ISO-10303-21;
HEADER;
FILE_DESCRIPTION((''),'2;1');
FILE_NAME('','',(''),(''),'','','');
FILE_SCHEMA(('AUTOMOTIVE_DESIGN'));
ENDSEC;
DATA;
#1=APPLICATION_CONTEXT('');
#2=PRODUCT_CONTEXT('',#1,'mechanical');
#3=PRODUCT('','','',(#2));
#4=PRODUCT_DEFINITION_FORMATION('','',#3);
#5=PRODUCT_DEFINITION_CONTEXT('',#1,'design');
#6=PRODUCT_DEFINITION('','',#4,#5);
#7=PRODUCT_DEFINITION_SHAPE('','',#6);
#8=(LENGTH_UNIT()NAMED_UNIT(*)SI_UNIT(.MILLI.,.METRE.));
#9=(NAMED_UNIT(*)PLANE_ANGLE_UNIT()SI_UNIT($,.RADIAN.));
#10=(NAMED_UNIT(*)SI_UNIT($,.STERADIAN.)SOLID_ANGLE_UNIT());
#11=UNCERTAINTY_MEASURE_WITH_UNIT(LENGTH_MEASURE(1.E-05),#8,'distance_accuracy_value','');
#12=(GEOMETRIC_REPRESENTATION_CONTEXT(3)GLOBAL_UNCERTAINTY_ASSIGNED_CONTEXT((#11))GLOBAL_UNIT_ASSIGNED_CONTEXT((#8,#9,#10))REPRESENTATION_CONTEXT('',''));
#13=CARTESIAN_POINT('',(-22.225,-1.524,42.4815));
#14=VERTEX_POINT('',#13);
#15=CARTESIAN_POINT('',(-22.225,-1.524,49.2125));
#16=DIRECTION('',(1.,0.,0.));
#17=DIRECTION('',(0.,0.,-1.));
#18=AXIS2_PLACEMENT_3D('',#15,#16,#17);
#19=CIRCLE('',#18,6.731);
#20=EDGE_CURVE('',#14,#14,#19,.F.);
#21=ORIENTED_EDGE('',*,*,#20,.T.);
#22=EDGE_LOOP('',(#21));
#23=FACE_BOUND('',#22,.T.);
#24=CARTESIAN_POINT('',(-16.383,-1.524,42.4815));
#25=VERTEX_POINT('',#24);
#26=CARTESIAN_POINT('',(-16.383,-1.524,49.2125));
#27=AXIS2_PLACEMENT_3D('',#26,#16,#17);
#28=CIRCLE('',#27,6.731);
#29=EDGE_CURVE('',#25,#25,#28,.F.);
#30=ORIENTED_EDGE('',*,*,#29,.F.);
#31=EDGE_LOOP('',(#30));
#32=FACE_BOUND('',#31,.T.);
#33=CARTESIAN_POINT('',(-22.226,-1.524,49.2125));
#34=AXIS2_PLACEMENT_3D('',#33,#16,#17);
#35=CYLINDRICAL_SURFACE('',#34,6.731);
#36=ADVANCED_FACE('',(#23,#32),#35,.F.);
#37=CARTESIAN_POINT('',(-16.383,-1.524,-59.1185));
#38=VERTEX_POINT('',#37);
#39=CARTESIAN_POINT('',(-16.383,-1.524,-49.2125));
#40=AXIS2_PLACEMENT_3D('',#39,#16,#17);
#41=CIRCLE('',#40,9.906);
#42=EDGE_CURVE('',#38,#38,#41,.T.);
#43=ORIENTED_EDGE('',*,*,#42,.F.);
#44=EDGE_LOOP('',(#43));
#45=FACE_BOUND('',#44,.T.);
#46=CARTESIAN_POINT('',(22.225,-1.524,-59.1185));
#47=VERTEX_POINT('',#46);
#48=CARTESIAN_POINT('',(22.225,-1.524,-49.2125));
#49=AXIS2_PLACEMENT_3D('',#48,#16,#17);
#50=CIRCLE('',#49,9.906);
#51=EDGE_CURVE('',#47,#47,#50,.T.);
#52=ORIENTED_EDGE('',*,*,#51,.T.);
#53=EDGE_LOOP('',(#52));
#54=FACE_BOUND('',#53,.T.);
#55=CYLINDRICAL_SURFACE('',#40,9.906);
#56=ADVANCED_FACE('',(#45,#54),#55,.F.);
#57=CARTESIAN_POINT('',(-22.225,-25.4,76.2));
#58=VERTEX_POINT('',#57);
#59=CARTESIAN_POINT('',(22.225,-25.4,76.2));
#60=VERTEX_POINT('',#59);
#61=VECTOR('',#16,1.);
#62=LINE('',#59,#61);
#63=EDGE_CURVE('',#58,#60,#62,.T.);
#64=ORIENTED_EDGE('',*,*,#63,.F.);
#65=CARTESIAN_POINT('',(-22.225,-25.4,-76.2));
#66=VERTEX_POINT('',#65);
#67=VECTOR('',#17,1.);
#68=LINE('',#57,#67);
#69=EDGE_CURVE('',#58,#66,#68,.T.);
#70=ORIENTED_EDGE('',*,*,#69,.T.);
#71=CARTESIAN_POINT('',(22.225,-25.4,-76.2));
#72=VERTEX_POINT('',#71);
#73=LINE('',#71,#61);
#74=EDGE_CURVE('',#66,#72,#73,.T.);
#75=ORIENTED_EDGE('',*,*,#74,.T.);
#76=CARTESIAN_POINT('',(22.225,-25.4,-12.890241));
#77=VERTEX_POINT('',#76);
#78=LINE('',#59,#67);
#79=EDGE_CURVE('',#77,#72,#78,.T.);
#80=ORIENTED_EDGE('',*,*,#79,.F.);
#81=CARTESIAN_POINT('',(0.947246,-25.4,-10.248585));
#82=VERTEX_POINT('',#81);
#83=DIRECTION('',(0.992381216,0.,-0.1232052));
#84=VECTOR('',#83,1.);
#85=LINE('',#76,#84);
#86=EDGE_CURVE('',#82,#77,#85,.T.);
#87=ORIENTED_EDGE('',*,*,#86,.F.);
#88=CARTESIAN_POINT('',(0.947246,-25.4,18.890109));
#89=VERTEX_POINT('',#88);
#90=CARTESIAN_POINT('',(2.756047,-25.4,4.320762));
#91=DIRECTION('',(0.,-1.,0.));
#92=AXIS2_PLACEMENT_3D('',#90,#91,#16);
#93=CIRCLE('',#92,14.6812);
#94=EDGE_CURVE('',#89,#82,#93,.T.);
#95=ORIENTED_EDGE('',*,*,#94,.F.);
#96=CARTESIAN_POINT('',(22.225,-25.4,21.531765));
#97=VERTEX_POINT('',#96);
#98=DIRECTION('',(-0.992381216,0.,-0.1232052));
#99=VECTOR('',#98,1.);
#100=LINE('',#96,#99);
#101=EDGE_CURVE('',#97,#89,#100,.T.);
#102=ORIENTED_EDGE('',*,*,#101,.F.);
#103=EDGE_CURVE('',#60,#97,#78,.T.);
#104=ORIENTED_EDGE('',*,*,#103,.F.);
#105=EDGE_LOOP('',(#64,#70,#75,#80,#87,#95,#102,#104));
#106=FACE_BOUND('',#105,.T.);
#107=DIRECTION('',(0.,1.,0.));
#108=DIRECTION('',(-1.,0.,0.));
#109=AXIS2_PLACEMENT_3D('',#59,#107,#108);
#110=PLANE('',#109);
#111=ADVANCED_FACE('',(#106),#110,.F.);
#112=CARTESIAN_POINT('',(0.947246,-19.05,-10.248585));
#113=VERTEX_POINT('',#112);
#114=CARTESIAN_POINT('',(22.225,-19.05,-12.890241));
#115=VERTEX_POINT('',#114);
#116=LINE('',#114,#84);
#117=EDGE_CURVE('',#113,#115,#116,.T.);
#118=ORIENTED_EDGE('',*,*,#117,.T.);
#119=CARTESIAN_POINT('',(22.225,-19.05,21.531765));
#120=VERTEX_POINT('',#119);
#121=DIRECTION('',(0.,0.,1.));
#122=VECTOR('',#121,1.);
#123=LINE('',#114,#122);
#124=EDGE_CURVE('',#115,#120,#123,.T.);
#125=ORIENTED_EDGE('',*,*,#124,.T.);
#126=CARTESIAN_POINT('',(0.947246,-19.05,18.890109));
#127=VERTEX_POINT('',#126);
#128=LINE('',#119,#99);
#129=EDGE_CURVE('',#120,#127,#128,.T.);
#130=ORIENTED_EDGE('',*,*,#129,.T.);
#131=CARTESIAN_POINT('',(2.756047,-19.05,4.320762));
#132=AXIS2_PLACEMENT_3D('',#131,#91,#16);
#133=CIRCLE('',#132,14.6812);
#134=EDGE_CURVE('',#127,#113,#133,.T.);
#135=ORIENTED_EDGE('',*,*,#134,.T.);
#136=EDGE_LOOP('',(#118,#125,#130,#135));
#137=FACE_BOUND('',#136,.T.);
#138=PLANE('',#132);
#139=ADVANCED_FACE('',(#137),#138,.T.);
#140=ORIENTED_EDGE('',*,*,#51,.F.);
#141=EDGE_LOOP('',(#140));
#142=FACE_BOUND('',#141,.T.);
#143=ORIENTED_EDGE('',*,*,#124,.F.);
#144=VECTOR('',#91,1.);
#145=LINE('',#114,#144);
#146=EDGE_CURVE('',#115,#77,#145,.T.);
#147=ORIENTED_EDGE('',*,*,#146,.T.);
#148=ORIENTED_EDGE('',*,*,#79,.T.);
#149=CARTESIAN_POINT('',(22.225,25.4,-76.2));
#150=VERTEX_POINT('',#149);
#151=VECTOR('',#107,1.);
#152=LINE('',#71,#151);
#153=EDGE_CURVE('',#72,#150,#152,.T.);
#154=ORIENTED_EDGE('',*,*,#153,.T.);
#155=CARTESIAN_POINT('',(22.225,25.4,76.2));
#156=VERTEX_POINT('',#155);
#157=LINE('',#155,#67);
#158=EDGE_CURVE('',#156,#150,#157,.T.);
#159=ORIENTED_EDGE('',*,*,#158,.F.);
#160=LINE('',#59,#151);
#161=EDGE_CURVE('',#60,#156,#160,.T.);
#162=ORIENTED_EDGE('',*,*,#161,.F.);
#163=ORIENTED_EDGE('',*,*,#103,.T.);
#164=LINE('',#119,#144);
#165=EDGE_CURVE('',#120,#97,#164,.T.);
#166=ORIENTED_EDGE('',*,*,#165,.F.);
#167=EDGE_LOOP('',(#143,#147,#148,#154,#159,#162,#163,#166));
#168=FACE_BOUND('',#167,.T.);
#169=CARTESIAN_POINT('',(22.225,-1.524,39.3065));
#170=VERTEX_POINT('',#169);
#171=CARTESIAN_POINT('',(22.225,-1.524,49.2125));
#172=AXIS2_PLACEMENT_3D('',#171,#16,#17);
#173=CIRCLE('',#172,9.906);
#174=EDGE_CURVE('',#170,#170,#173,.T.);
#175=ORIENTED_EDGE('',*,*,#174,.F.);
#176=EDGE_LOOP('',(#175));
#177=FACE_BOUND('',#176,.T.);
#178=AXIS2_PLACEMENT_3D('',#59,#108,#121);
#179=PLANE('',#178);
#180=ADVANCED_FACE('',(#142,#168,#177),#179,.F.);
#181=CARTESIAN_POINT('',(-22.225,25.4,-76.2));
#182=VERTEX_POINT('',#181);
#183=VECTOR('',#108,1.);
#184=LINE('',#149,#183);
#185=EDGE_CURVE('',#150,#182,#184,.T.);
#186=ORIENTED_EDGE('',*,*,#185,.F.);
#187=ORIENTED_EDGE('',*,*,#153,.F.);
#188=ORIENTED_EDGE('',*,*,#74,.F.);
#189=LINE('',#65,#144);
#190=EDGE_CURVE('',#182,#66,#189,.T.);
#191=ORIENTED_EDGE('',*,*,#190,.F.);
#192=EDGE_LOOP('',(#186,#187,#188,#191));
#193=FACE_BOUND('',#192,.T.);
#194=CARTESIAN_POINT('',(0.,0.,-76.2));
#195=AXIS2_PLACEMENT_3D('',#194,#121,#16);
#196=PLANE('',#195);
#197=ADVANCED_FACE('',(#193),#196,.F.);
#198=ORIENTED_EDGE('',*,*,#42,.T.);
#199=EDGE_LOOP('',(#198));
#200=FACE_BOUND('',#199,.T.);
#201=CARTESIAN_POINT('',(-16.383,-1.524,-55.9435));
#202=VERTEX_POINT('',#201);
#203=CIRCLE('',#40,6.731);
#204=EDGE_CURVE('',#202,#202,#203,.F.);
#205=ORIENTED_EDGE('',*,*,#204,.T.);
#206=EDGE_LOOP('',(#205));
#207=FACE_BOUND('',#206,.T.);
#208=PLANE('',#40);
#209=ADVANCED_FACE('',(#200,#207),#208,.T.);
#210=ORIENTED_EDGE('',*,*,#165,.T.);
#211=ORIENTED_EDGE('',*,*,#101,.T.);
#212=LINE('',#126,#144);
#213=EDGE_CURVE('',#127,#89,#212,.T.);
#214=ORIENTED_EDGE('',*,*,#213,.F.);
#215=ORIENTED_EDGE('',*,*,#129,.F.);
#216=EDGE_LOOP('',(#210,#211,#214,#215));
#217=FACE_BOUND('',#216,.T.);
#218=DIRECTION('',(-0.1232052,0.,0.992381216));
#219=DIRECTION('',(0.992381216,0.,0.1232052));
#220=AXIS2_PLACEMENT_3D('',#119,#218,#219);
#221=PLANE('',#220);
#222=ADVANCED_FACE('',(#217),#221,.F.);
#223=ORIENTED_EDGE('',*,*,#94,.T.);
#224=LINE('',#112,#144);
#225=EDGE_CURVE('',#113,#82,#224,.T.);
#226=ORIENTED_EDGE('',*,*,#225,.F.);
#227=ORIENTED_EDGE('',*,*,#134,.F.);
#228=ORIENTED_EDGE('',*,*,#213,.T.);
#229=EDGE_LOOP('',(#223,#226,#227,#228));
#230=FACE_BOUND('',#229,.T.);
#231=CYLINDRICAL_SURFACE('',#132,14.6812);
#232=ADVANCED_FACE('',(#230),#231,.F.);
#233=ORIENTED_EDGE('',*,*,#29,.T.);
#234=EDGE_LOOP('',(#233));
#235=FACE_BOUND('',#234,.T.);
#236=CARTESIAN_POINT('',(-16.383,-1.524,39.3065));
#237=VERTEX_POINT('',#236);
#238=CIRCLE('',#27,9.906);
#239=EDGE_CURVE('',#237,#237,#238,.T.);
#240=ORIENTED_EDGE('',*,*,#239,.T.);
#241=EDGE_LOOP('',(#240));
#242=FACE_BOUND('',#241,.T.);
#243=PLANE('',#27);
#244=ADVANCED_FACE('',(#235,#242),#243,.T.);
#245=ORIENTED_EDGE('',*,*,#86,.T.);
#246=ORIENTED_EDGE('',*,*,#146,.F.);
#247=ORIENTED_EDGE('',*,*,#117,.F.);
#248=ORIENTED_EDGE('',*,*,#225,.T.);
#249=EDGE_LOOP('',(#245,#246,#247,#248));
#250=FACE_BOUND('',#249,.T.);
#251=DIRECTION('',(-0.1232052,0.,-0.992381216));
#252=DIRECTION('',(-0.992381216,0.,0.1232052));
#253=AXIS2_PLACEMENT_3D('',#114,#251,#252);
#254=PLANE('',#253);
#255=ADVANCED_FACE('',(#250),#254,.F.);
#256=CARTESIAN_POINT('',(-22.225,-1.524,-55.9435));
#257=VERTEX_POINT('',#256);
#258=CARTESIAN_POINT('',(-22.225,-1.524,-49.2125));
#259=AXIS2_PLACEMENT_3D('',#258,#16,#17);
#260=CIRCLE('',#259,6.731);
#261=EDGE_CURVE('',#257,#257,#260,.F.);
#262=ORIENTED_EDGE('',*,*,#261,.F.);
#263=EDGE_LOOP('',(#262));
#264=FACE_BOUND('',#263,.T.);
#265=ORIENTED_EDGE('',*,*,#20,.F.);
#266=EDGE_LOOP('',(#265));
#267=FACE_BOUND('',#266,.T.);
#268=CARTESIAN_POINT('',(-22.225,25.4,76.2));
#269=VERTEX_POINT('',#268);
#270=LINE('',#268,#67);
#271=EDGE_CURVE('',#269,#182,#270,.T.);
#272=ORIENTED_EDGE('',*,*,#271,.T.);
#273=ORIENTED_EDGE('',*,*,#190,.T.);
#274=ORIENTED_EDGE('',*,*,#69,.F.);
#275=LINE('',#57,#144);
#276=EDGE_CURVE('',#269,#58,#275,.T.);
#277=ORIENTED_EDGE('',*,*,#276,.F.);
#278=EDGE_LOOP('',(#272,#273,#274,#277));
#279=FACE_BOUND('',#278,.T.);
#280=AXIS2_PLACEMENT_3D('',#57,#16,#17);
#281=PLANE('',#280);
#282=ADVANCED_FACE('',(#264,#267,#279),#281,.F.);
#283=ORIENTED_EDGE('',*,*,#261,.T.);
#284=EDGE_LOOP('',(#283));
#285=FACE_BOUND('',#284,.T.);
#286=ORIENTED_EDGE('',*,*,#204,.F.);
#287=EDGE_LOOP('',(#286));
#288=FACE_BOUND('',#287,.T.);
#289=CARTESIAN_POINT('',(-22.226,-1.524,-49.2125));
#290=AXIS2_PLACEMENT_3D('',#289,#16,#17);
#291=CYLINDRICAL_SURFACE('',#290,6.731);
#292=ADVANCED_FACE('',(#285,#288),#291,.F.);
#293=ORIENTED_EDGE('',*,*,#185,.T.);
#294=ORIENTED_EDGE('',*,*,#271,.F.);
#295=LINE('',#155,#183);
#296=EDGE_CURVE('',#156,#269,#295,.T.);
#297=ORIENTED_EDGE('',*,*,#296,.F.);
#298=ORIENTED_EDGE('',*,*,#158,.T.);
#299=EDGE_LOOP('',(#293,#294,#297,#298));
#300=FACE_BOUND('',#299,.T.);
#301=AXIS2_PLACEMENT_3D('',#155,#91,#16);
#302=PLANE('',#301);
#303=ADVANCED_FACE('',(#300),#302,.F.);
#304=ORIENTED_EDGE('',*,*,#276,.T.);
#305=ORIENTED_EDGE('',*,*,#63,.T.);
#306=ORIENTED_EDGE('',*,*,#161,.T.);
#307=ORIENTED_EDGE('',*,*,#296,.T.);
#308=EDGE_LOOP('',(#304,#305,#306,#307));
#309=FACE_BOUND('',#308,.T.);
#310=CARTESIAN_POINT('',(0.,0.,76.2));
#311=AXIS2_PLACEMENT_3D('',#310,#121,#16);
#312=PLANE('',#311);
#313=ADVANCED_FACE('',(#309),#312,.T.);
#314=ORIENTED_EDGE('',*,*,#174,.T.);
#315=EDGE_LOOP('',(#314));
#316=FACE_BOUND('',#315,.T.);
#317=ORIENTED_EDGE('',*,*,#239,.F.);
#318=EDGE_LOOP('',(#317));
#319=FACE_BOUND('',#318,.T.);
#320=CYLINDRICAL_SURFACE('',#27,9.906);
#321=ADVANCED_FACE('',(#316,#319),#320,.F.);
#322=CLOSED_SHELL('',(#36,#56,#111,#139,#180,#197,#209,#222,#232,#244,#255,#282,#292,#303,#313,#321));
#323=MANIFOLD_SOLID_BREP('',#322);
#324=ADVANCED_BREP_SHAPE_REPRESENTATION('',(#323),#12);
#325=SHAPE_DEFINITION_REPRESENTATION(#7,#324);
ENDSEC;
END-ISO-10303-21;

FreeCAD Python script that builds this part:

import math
import FreeCAD as App
import Part
import Sketcher
Q = App.Units.Quantity

doc = App.newDocument("Part")
body = doc.addObject("PartDesign::Body", "Body")

# Sketch on XY plane
sketch1 = body.newObject("Sketcher::SketchObject", "Sketch")
sketch1.AttachmentSupport = (doc.getObject("XY_Plane"), [""])
sketch1.MapMode = "FlatFace"
sketch1.addGeometry(Part.LineSegment(App.Vector(-22, 25, 0), App.Vector(-22, -25, 0)), False)
sketch1.addGeometry(Part.LineSegment(App.Vector(-22, -25, 0), App.Vector(22, -25, 0)), False)
sketch1.addGeometry(Part.LineSegment(App.Vector(22, -25, 0), App.Vector(22, 25, 0)), False)
sketch1.addGeometry(Part.LineSegment(App.Vector(22, 25, 0), App.Vector(-22, 25, 0)), False)
sketch1.addConstraint(Sketcher.Constraint("Coincident", 0, 2, 1, 1))
sketch1.addConstraint(Sketcher.Constraint("Coincident", 1, 2, 2, 1))
sketch1.addConstraint(Sketcher.Constraint("Coincident", 2, 2, 3, 1))
sketch1.addConstraint(Sketcher.Constraint("Coincident", 3, 2, 0, 1))
sketch1.addConstraint(Sketcher.Constraint("Vertical", 0))
sketch1.addConstraint(Sketcher.Constraint("Horizontal", 1))
sketch1.addConstraint(Sketcher.Constraint("Vertical", 2))
sketch1.addConstraint(Sketcher.Constraint("Horizontal", 3))
sketch1.addConstraint(Sketcher.Constraint("Symmetric", 0, 2, 2, 2, -1, 1))
sketch1.addConstraint(Sketcher.Constraint("DistanceY", 0, 2, 0, 1, Q("2 in")))
sketch1.addConstraint(Sketcher.Constraint("DistanceX", 1, 1, 1, 2, Q("1.75 in")))
pad1 = body.newObject("PartDesign::Pad", "Pad")
pad1.Profile = sketch1
pad1.Length = Q("6 in")
pad1.Midplane = True

# Sketch on YZ plane
sketch2 = body.newObject("Sketcher::SketchObject", "Sketch001")
sketch2.AttachmentSupport = (doc.getObject("YZ_Plane"), [""])
sketch2.MapMode = "FlatFace"
sketch2.AttachmentOffset = App.Placement(App.Vector(0, 0, 0.875 * 25.4), App.Rotation())
sketch2.addGeometry(Part.Circle(App.Vector(-2, 49, 0), App.Vector(0, 0, 1), 7), False)
sketch2.addConstraint(Sketcher.Constraint("Diameter", 0, Q("0.53 in")))
sketch2.addConstraint(Sketcher.Constraint("DistanceX", 0, 3, -1, 1, Q("0.06 in")))
sketch2.addConstraint(Sketcher.Constraint("DistanceY", -1, 1, 0, 3, Q("1.9375 in")))
pocket1 = body.newObject("PartDesign::Pocket", "Pocket")
pocket1.Profile = sketch2
pocket1.Type = "UpToFirst"

# Sketch on YZ plane
sketch3 = body.newObject("Sketcher::SketchObject", "Sketch002")
sketch3.AttachmentSupport = (doc.getObject("YZ_Plane"), [""])
sketch3.MapMode = "FlatFace"
sketch3.AttachmentOffset = App.Placement(App.Vector(0, 0, 0.875 * 25.4), App.Rotation())
sketch3.addGeometry(Part.Circle(App.Vector(-2, -49, 0), App.Vector(0, 0, 1), 7), False)
sketch3.addConstraint(Sketcher.Constraint("Diameter", 0, Q("0.53 in")))
sketch3.addConstraint(Sketcher.Constraint("DistanceX", 0, 3, -1, 1, Q("0.06 in")))
sketch3.addConstraint(Sketcher.Constraint("DistanceY", 0, 3, -1, 1, Q("1.9375 in")))
pocket2 = body.newObject("PartDesign::Pocket", "Pocket001")
pocket2.Profile = sketch3
pocket2.Type = "UpToFirst"

# Sketch on YZ plane
sketch4 = body.newObject("Sketcher::SketchObject", "Sketch003")
sketch4.AttachmentSupport = (doc.getObject("YZ_Plane"), [""])
sketch4.MapMode = "FlatFace"
sketch4.AttachmentOffset = App.Placement(App.Vector(0, 0, 0.875 * 25.4), App.Rotation())
sketch4.addGeometry(Part.Circle(App.Vector(-2, 49, 0), App.Vector(0, 0, 1), 10), False)
sketch4.addGeometry(Part.Circle(App.Vector(-2, -49, 0), App.Vector(0, 0, 1), 10), False)
sketch4.addConstraint(Sketcher.Constraint("Equal", 0, 1))
sketch4.addConstraint(Sketcher.Constraint("Symmetric", 0, 3, 1, 3, -1))
sketch4.addConstraint(Sketcher.Constraint("Diameter", 0, Q("0.78 in")))
sketch4.addConstraint(Sketcher.Constraint("DistanceX", 0, 3, -1, 1, Q("0.06 in")))
sketch4.addConstraint(Sketcher.Constraint("DistanceY", -1, 1, 0, 3, Q("1.9375 in")))
pocket3 = body.newObject("PartDesign::Pocket", "Pocket002")
pocket3.Profile = sketch4
pocket3.Length = Q("1.52 in")

# Sketch on XZ plane
sketch5 = body.newObject("Sketcher::SketchObject", "Sketch004")
sketch5.AttachmentSupport = (doc.getObject("XZ_Plane"), [""])
sketch5.MapMode = "FlatFace"
sketch5.AttachmentOffset = App.Placement(App.Vector(0, 0, 1 * 25.4), App.Rotation())
sketch5.addGeometry(Part.LineSegment(App.Vector(22, -13, 0), App.Vector(22, 22, 0)), False)
sketch5.addGeometry(Part.LineSegment(App.Vector(22, 22, 0), App.Vector(1, 19, 0)), False)
sketch5.addGeometry(Part.ArcOfCircle(Part.Circle(App.Vector(3, 4, 0), App.Vector(0, 0, 1), 15), math.radians(97), math.radians(263)), False)
sketch5.addGeometry(Part.LineSegment(App.Vector(1, -10, 0), App.Vector(22, -13, 0)), False)
sketch5.addConstraint(Sketcher.Constraint("Coincident", 0, 2, 1, 1))
sketch5.addConstraint(Sketcher.Constraint("Tangent", 1, 2, 2, 1))
sketch5.addConstraint(Sketcher.Constraint("Tangent", 2, 2, 3, 1))
sketch5.addConstraint(Sketcher.Constraint("Coincident", 3, 2, 0, 1))
sketch5.addConstraint(Sketcher.Constraint("Vertical", 0))
sketch5.addConstraint(Sketcher.Constraint("Vertical", 1, 2, 2, 2))
sketch5.addConstraint(Sketcher.Constraint("Radius", 2, Q("0.578 in")))
sketch5.addConstraint(Sketcher.Constraint("DistanceX", -1, 1, 0, 2, Q("0.875 in")))
sketch5.addConstraint(Sketcher.Constraint("DistanceX", 1, 2, 2, 3, 1.8088))
sketch5.addConstraint(Sketcher.Constraint("Distance", 1, 21.441109))
sketch5.addConstraint(Sketcher.Constraint("DistanceY", -1, 1, 2, 3, 4.320762))
pocket4 = body.newObject("PartDesign::Pocket", "Pocket003")
pocket4.Profile = sketch5
pocket4.Length = Q("0.25 in")

doc.recompute()
